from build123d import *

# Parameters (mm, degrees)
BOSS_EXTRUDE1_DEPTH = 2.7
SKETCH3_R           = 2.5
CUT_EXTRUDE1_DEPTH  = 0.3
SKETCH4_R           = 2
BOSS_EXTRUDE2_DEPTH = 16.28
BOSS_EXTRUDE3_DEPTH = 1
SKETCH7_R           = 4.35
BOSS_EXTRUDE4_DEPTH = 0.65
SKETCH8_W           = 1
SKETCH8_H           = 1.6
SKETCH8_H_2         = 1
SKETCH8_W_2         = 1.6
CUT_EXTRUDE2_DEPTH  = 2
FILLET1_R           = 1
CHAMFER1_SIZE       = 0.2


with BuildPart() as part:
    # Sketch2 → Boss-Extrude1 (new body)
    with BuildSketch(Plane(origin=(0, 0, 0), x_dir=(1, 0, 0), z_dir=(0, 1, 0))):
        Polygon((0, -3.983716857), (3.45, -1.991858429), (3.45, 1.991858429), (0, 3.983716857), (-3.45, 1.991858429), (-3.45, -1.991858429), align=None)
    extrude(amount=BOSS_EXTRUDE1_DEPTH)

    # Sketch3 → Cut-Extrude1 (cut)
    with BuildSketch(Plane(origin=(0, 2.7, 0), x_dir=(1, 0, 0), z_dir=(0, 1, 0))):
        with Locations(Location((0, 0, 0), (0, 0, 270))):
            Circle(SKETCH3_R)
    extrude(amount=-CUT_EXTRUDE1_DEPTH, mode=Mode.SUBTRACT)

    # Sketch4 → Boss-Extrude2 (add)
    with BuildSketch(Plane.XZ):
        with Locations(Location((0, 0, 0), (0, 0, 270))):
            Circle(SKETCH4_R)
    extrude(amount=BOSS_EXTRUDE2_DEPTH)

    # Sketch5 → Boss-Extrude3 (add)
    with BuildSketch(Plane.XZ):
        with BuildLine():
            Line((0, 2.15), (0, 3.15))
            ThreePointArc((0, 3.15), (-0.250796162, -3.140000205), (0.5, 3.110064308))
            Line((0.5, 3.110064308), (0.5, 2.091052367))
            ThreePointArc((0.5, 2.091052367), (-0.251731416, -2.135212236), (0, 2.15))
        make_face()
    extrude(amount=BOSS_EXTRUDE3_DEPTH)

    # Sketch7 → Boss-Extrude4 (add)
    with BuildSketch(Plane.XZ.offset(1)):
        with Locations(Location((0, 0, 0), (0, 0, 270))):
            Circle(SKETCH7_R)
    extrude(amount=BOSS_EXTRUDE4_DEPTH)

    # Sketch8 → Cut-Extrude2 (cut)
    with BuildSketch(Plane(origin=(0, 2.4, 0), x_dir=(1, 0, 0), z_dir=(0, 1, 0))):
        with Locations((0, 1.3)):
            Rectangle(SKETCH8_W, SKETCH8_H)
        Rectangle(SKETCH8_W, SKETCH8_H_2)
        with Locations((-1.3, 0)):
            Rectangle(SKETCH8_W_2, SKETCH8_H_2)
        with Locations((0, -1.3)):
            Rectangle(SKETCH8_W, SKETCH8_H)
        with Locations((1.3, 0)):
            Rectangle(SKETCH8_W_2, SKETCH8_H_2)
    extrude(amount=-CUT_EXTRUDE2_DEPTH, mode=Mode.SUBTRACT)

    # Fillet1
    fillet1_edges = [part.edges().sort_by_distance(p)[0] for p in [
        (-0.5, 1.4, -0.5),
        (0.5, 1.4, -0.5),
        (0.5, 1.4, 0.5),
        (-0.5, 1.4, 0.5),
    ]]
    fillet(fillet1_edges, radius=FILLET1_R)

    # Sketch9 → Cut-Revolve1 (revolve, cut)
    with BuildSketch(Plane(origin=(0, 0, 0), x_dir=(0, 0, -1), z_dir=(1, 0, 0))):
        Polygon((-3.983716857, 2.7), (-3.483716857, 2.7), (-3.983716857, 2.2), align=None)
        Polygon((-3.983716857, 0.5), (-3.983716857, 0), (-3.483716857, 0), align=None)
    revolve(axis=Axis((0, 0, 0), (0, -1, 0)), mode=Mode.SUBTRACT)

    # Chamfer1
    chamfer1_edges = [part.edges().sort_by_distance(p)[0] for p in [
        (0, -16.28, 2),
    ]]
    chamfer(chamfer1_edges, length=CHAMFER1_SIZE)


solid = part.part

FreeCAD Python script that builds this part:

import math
import FreeCAD as App
import Part
import Sketcher

V = App.Vector
Q = App.Units.Quantity


def edges_at(feature, points):
    """Names of the edges that pass closest to the given points."""
    edges = feature.Shape.Edges
    near = lambda p: min(range(len(edges)), key=lambda i: edges[i].distToShape(Part.Vertex(*p))[0])
    return sorted({f"Edge{near(p) + 1}" for p in points})

doc = App.newDocument("Part")
body = doc.addObject("PartDesign::Body", "Body")

sketch1 = body.newObject("Sketcher::SketchObject", "Sketch")
sketch1.AttachmentSupport = (doc.getObject("XZ_Plane"), [""])
sketch1.MapMode = "FlatFace"
sketch1.addGeometry(Part.LineSegment(V(0, 3.983717, 0), V(3.45, 1.991858, 0)), False)
sketch1.addGeometry(Part.LineSegment(V(3.45, 1.991858, 0), V(3.45, -1.991858, 0)), False)
sketch1.addGeometry(Part.LineSegment(V(3.45, -1.991858, 0), V(0, -3.983717, 0)), False)
sketch1.addGeometry(Part.LineSegment(V(0, -3.983717, 0), V(-3.45, -1.991858, 0)), False)
sketch1.addGeometry(Part.LineSegment(V(-3.45, -1.991858, 0), V(-3.45, 1.991858, 0)), False)
sketch1.addGeometry(Part.LineSegment(V(-3.45, 1.991858, 0), V(0, 3.983717, 0)), False)
sketch1.addConstraint(Sketcher.Constraint("Coincident", 0, 2, 1, 1))
sketch1.addConstraint(Sketcher.Constraint("Coincident", 1, 2, 2, 1))
sketch1.addConstraint(Sketcher.Constraint("Coincident", 2, 2, 3, 1))
sketch1.addConstraint(Sketcher.Constraint("Coincident", 3, 2, 4, 1))
sketch1.addConstraint(Sketcher.Constraint("Coincident", 4, 2, 5, 1))
sketch1.addConstraint(Sketcher.Constraint("Coincident", 5, 2, 0, 1))
sketch1.addConstraint(Sketcher.Constraint("Vertical", 1))
sketch1.addConstraint(Sketcher.Constraint("Vertical", 4))
sketch1.addConstraint(Sketcher.Constraint("Symmetric", 0, 2, 3, 2, -1, 1))
sketch1.addConstraint(Sketcher.Constraint("Symmetric", 2, 2, 5, 2, -1, 1))
sketch1.addConstraint(Sketcher.Constraint("PointOnObject", 2, 2, -2))
sketch1.addConstraint(Sketcher.Constraint("Parallel", 2, 5))
sketch1.addConstraint(Sketcher.Constraint("Horizontal", 1, 2, 3, 2))
sketch1.addConstraint(Sketcher.Constraint("Angle", 0, Q("-30 deg")))
sketch1.addConstraint(Sketcher.Constraint("DistanceX", 3, 2, 1, 2, 6.9))
sketch1.addConstraint(Sketcher.Constraint("DistanceY", 1, 2, 1, 1, 3.983717))
pad1 = body.newObject("PartDesign::Pad", "Pad")
pad1.Profile = sketch1
pad1.Length = 2.7
pad1.Reversed = True

sketch2 = body.newObject("Sketcher::SketchObject", "Sketch001")
sketch2.AttachmentSupport = (doc.getObject("XZ_Plane"), [""])
sketch2.MapMode = "FlatFace"
sketch2.AttachmentOffset = App.Placement(V(0, 0, -2.7), App.Rotation())
sketch2.addGeometry(Part.Circle(V(0, 0, 0), V(0, 0, 1), 2.5), False)
sketch2.addConstraint(Sketcher.Constraint("Coincident", 0, 3, -1, 1))
sketch2.addConstraint(Sketcher.Constraint("Diameter", 0, 5.0))
pocket1 = body.newObject("PartDesign::Pocket", "Pocket")
pocket1.Profile = sketch2
pocket1.Length = 0.3
pocket1.Reversed = True

sketch3 = body.newObject("Sketcher::SketchObject", "Sketch002")
sketch3.AttachmentSupport = (doc.getObject("XZ_Plane"), [""])
sketch3.MapMode = "FlatFace"
sketch3.addGeometry(Part.Circle(V(0, 0, 0), V(0, 0, 1), 2), False)
sketch3.addConstraint(Sketcher.Constraint("Coincident", 0, 3, -1, 1))
sketch3.addConstraint(Sketcher.Constraint("Diameter", 0, 4.0))
pad2 = body.newObject("PartDesign::Pad", "Pad001")
pad2.Profile = sketch3
pad2.Length = 16.28

sketch4 = body.newObject("Sketcher::SketchObject", "Sketch003")
sketch4.AttachmentSupport = (doc.getObject("XZ_Plane"), [""])
sketch4.MapMode = "FlatFace"
sketch4.addGeometry(Part.LineSegment(V(0, 2.15, 0), V(0, 3.15, 0)), False)
sketch4.addGeometry(Part.ArcOfCircle(Part.Circle(V(0, 0, 0), V(0, 0, 1), 3.15), math.radians(90), math.radians(440.866802)), False)
sketch4.addGeometry(Part.LineSegment(V(0.5, 3.110064, 0), V(0.5, 2.091052, 0)), False)
sketch4.addGeometry(Part.ArcOfCircle(Part.Circle(V(0, 0, 0), V(0, 0, 1), 2.15), math.radians(90), math.radians(436.552273)), False)
sketch4.addConstraint(Sketcher.Constraint("Coincident", 0, 2, 1, 1))
sketch4.addConstraint(Sketcher.Constraint("Coincident", 1, 2, 2, 1))
sketch4.addConstraint(Sketcher.Constraint("Coincident", 2, 2, 3, 2))
sketch4.addConstraint(Sketcher.Constraint("Coincident", 3, 1, 0, 1))
sketch4.addConstraint(Sketcher.Constraint("Vertical", 0))
sketch4.addConstraint(Sketcher.Constraint("Vertical", 2))
sketch4.addConstraint(Sketcher.Constraint("Coincident", 1, 3, -1, 1))
sketch4.addConstraint(Sketcher.Constraint("Coincident", 3, 3, -1, 1))
sketch4.addConstraint(Sketcher.Constraint("PointOnObject", 0, 2, -2))
sketch4.addConstraint(Sketcher.Constraint("DistanceY", 0, 1, 0, 2, 1.0))
sketch4.addConstraint(Sketcher.Constraint("Radius", 1, 3.15))
sketch4.addConstraint(Sketcher.Constraint("DistanceX", -1, 1, 1, 2, 0.5))
pad3 = body.newObject("PartDesign::Pad", "Pad002")
pad3.Profile = sketch4
pad3.Length = 1

sketch5 = body.newObject("Sketcher::SketchObject", "Sketch004")
sketch5.AttachmentSupport = (doc.getObject("XZ_Plane"), [""])
sketch5.MapMode = "FlatFace"
sketch5.AttachmentOffset = App.Placement(V(0, 0, 1), App.Rotation())
sketch5.addGeometry(Part.Circle(V(0, 0, 0), V(0, 0, 1), 4.35), False)
sketch5.addConstraint(Sketcher.Constraint("Coincident", 0, 3, -1, 1))
sketch5.addConstraint(Sketcher.Constraint("Diameter", 0, 8.7))
pad4 = body.newObject("PartDesign::Pad", "Pad003")
pad4.Profile = sketch5
pad4.Length = 0.65

sketch6 = body.newObject("Sketcher::SketchObject", "Sketch005")
sketch6.AttachmentSupport = (doc.getObject("XZ_Plane"), [""])
sketch6.MapMode = "FlatFace"
sketch6.AttachmentOffset = App.Placement(V(0, 0, -2.4), App.Rotation())
sketch6.addGeometry(Part.LineSegment(V(-0.5, -2.1, 0), V(-0.5, -0.5, 0)), False)
sketch6.addGeometry(Part.LineSegment(V(-0.5, -0.5, 0), V(-2.1, -0.5, 0)), False)
sketch6.addGeometry(Part.LineSegment(V(-2.1, -0.5, 0), V(-2.1, 0.5, 0)), False)
sketch6.addGeometry(Part.LineSegment(V(-2.1, 0.5, 0), V(-0.5, 0.5, 0)), False)
sketch6.addGeometry(Part.LineSegment(V(-0.5, 0.5, 0), V(-0.5, 2.1, 0)), False)
sketch6.addGeometry(Part.LineSegment(V(-0.5, 2.1, 0), V(0.5, 2.1, 0)), False)
sketch6.addGeometry(Part.LineSegment(V(0.5, 2.1, 0), V(0.5, 0.5, 0)), False)
sketch6.addGeometry(Part.LineSegment(V(0.5, 0.5, 0), V(2.1, 0.5, 0)), False)
sketch6.addGeometry(Part.LineSegment(V(2.1, 0.5, 0), V(2.1, -0.5, 0)), False)
sketch6.addGeometry(Part.LineSegment(V(2.1, -0.5, 0), V(0.5, -0.5, 0)), False)
sketch6.addGeometry(Part.LineSegment(V(0.5, -0.5, 0), V(0.5, -2.1, 0)), False)
sketch6.addGeometry(Part.LineSegment(V(0.5, -2.1, 0), V(-0.5, -2.1, 0)), False)
sketch6.addConstraint(Sketcher.Constraint("Coincident", 0, 2, 1, 1))
sketch6.addConstraint(Sketcher.Constraint("Coincident", 1, 2, 2, 1))
sketch6.addConstraint(Sketcher.Constraint("Coincident", 2, 2, 3, 1))
sketch6.addConstraint(Sketcher.Constraint("Coincident", 3, 2, 4, 1))
sketch6.addConstraint(Sketcher.Constraint("Coincident", 4, 2, 5, 1))
sketch6.addConstraint(Sketcher.Constraint("Coincident", 5, 2, 6, 1))
sketch6.addConstraint(Sketcher.Constraint("Coincident", 6, 2, 7, 1))
sketch6.addConstraint(Sketcher.Constraint("Coincident", 7, 2, 8, 1))
sketch6.addConstraint(Sketcher.Constraint("Coincident", 8, 2, 9, 1))
sketch6.addConstraint(Sketcher.Constraint("Coincident", 9, 2, 10, 1))
sketch6.addConstraint(Sketcher.Constraint("Coincident", 10, 2, 11, 1))
sketch6.addConstraint(Sketcher.Constraint("Coincident", 11, 2, 0, 1))
sketch6.addConstraint(Sketcher.Constraint("Vertical", 0))
sketch6.addConstraint(Sketcher.Constraint("Horizontal", 1))
sketch6.addConstraint(Sketcher.Constraint("Vertical", 2))
sketch6.addConstraint(Sketcher.Constraint("Horizontal", 3))
sketch6.addConstraint(Sketcher.Constraint("Vertical", 4))
sketch6.addConstraint(Sketcher.Constraint("Horizontal", 5))
sketch6.addConstraint(Sketcher.Constraint("Vertical", 6))
sketch6.addConstraint(Sketcher.Constraint("Horizontal", 7))
sketch6.addConstraint(Sketcher.Constraint("Vertical", 8))
sketch6.addConstraint(Sketcher.Constraint("Horizontal", 9))
sketch6.addConstraint(Sketcher.Constraint("Vertical", 10))
sketch6.addConstraint(Sketcher.Constraint("Horizontal", 11))
sketch6.addConstraint(Sketcher.Constraint("Symmetric", 0, 2, 6, 2, -1, 1))
sketch6.addConstraint(Sketcher.Constraint("Symmetric", 2, 2, 8, 2, -1, 1))
sketch6.addConstraint(Sketcher.Constraint("Symmetric", 4, 2, 10, 2, -1, 1))
sketch6.addConstraint(Sketcher.Constraint("Symmetric", 3, 2, 6, 2, -2))
sketch6.addConstraint(Sketcher.Constraint("Equal", 9, 0))
sketch6.addConstraint(Sketcher.Constraint("Equal", 11, 2))
sketch6.addConstraint(Sketcher.Constraint("DistanceX", 5, 1, 5, 2, 1.0))
sketch6.addConstraint(Sketcher.Constraint("DistanceX", 1, 2, 1, 1, 1.6))
pocket2 = body.newObject("PartDesign::Pocket", "Pocket001")
pocket2.Profile = sketch6
pocket2.Length = 2
pocket2.Reversed = True
doc.recompute()

fillet = body.newObject("PartDesign::Fillet", "Fillet")
fillet.Base = (pocket2, edges_at(pocket2, [
    (-0.5, 1.4, -0.5),
    (0.5, 1.4, -0.5),
    (0.5, 1.4, 0.5),
    (-0.5, 1.4, 0.5),
]))
fillet.Radius = 1

sketch7 = body.newObject("Sketcher::SketchObject", "Sketch006")
sketch7.AttachmentSupport = (doc.getObject("YZ_Plane"), [""])
sketch7.MapMode = "FlatFace"
sketch7.addGeometry(Part.LineSegment(V(2.7, 3.483717, 0), V(2.7, 3.983717, 0)), False)
sketch7.addGeometry(Part.LineSegment(V(2.7, 3.983717, 0), V(2.2, 3.983717, 0)), False)
sketch7.addGeometry(Part.LineSegment(V(2.2, 3.983717, 0), V(2.7, 3.483717, 0)), False)
sketch7.addGeometry(Part.LineSegment(V(0.5, 3.983717, 0), V(0, 3.983717, 0)), False)
sketch7.addGeometry(Part.LineSegment(V(0, 3.983717, 0), V(0, 3.483717, 0)), False)
sketch7.addGeometry(Part.LineSegment(V(0, 3.483717, 0), V(0.5, 3.983717, 0)), False)
sketch7.addConstraint(Sketcher.Constraint("Coincident", 0, 2, 1, 1))
sketch7.addConstraint(Sketcher.Constraint("Coincident", 1, 2, 2, 1))
sketch7.addConstraint(Sketcher.Constraint("Coincident", 2, 2, 0, 1))
sketch7.addConstraint(Sketcher.Constraint("Coincident", 3, 2, 4, 1))
sketch7.addConstraint(Sketcher.Constraint("Coincident", 4, 2, 5, 1))
sketch7.addConstraint(Sketcher.Constraint("Coincident", 5, 2, 3, 1))
sketch7.addConstraint(Sketcher.Constraint("Vertical", 0))
sketch7.addConstraint(Sketcher.Constraint("Horizontal", 1))
sketch7.addConstraint(Sketcher.Constraint("Horizontal", 3))
sketch7.addConstraint(Sketcher.Constraint("Vertical", 4))
sketch7.addConstraint(Sketcher.Constraint("PointOnObject", 3, 2, -2))
sketch7.addConstraint(Sketcher.Constraint("Perpendicular", 2, 5))
sketch7.addConstraint(Sketcher.Constraint("Horizontal", 1, 2, 3, 2))
sketch7.addConstraint(Sketcher.Constraint("Horizontal", 2, 2, 4, 2))
sketch7.addConstraint(Sketcher.Constraint("Equal", 1, 3))
sketch7.addConstraint(Sketcher.Constraint("DistanceX", 1, 2, 1, 1, 0.5))
sketch7.addConstraint(Sketcher.Constraint("DistanceX", -1, 1, 0, 2, 2.7))
sketch7.addConstraint(Sketcher.Constraint("DistanceY", -1, 1, 0, 2, 3.983717))
groove = body.newObject("PartDesign::Groove", "Groove")
groove.Profile = sketch7
groove.ReferenceAxis = (sketch7, ["H_Axis"])
groove.Angle = 360
doc.recompute()

chamfer = body.newObject("PartDesign::Chamfer", "Chamfer")
chamfer.Base = (groove, edges_at(groove, [(0, -16.28, 2)]))
chamfer.Size = 0.2

doc.recompute()
